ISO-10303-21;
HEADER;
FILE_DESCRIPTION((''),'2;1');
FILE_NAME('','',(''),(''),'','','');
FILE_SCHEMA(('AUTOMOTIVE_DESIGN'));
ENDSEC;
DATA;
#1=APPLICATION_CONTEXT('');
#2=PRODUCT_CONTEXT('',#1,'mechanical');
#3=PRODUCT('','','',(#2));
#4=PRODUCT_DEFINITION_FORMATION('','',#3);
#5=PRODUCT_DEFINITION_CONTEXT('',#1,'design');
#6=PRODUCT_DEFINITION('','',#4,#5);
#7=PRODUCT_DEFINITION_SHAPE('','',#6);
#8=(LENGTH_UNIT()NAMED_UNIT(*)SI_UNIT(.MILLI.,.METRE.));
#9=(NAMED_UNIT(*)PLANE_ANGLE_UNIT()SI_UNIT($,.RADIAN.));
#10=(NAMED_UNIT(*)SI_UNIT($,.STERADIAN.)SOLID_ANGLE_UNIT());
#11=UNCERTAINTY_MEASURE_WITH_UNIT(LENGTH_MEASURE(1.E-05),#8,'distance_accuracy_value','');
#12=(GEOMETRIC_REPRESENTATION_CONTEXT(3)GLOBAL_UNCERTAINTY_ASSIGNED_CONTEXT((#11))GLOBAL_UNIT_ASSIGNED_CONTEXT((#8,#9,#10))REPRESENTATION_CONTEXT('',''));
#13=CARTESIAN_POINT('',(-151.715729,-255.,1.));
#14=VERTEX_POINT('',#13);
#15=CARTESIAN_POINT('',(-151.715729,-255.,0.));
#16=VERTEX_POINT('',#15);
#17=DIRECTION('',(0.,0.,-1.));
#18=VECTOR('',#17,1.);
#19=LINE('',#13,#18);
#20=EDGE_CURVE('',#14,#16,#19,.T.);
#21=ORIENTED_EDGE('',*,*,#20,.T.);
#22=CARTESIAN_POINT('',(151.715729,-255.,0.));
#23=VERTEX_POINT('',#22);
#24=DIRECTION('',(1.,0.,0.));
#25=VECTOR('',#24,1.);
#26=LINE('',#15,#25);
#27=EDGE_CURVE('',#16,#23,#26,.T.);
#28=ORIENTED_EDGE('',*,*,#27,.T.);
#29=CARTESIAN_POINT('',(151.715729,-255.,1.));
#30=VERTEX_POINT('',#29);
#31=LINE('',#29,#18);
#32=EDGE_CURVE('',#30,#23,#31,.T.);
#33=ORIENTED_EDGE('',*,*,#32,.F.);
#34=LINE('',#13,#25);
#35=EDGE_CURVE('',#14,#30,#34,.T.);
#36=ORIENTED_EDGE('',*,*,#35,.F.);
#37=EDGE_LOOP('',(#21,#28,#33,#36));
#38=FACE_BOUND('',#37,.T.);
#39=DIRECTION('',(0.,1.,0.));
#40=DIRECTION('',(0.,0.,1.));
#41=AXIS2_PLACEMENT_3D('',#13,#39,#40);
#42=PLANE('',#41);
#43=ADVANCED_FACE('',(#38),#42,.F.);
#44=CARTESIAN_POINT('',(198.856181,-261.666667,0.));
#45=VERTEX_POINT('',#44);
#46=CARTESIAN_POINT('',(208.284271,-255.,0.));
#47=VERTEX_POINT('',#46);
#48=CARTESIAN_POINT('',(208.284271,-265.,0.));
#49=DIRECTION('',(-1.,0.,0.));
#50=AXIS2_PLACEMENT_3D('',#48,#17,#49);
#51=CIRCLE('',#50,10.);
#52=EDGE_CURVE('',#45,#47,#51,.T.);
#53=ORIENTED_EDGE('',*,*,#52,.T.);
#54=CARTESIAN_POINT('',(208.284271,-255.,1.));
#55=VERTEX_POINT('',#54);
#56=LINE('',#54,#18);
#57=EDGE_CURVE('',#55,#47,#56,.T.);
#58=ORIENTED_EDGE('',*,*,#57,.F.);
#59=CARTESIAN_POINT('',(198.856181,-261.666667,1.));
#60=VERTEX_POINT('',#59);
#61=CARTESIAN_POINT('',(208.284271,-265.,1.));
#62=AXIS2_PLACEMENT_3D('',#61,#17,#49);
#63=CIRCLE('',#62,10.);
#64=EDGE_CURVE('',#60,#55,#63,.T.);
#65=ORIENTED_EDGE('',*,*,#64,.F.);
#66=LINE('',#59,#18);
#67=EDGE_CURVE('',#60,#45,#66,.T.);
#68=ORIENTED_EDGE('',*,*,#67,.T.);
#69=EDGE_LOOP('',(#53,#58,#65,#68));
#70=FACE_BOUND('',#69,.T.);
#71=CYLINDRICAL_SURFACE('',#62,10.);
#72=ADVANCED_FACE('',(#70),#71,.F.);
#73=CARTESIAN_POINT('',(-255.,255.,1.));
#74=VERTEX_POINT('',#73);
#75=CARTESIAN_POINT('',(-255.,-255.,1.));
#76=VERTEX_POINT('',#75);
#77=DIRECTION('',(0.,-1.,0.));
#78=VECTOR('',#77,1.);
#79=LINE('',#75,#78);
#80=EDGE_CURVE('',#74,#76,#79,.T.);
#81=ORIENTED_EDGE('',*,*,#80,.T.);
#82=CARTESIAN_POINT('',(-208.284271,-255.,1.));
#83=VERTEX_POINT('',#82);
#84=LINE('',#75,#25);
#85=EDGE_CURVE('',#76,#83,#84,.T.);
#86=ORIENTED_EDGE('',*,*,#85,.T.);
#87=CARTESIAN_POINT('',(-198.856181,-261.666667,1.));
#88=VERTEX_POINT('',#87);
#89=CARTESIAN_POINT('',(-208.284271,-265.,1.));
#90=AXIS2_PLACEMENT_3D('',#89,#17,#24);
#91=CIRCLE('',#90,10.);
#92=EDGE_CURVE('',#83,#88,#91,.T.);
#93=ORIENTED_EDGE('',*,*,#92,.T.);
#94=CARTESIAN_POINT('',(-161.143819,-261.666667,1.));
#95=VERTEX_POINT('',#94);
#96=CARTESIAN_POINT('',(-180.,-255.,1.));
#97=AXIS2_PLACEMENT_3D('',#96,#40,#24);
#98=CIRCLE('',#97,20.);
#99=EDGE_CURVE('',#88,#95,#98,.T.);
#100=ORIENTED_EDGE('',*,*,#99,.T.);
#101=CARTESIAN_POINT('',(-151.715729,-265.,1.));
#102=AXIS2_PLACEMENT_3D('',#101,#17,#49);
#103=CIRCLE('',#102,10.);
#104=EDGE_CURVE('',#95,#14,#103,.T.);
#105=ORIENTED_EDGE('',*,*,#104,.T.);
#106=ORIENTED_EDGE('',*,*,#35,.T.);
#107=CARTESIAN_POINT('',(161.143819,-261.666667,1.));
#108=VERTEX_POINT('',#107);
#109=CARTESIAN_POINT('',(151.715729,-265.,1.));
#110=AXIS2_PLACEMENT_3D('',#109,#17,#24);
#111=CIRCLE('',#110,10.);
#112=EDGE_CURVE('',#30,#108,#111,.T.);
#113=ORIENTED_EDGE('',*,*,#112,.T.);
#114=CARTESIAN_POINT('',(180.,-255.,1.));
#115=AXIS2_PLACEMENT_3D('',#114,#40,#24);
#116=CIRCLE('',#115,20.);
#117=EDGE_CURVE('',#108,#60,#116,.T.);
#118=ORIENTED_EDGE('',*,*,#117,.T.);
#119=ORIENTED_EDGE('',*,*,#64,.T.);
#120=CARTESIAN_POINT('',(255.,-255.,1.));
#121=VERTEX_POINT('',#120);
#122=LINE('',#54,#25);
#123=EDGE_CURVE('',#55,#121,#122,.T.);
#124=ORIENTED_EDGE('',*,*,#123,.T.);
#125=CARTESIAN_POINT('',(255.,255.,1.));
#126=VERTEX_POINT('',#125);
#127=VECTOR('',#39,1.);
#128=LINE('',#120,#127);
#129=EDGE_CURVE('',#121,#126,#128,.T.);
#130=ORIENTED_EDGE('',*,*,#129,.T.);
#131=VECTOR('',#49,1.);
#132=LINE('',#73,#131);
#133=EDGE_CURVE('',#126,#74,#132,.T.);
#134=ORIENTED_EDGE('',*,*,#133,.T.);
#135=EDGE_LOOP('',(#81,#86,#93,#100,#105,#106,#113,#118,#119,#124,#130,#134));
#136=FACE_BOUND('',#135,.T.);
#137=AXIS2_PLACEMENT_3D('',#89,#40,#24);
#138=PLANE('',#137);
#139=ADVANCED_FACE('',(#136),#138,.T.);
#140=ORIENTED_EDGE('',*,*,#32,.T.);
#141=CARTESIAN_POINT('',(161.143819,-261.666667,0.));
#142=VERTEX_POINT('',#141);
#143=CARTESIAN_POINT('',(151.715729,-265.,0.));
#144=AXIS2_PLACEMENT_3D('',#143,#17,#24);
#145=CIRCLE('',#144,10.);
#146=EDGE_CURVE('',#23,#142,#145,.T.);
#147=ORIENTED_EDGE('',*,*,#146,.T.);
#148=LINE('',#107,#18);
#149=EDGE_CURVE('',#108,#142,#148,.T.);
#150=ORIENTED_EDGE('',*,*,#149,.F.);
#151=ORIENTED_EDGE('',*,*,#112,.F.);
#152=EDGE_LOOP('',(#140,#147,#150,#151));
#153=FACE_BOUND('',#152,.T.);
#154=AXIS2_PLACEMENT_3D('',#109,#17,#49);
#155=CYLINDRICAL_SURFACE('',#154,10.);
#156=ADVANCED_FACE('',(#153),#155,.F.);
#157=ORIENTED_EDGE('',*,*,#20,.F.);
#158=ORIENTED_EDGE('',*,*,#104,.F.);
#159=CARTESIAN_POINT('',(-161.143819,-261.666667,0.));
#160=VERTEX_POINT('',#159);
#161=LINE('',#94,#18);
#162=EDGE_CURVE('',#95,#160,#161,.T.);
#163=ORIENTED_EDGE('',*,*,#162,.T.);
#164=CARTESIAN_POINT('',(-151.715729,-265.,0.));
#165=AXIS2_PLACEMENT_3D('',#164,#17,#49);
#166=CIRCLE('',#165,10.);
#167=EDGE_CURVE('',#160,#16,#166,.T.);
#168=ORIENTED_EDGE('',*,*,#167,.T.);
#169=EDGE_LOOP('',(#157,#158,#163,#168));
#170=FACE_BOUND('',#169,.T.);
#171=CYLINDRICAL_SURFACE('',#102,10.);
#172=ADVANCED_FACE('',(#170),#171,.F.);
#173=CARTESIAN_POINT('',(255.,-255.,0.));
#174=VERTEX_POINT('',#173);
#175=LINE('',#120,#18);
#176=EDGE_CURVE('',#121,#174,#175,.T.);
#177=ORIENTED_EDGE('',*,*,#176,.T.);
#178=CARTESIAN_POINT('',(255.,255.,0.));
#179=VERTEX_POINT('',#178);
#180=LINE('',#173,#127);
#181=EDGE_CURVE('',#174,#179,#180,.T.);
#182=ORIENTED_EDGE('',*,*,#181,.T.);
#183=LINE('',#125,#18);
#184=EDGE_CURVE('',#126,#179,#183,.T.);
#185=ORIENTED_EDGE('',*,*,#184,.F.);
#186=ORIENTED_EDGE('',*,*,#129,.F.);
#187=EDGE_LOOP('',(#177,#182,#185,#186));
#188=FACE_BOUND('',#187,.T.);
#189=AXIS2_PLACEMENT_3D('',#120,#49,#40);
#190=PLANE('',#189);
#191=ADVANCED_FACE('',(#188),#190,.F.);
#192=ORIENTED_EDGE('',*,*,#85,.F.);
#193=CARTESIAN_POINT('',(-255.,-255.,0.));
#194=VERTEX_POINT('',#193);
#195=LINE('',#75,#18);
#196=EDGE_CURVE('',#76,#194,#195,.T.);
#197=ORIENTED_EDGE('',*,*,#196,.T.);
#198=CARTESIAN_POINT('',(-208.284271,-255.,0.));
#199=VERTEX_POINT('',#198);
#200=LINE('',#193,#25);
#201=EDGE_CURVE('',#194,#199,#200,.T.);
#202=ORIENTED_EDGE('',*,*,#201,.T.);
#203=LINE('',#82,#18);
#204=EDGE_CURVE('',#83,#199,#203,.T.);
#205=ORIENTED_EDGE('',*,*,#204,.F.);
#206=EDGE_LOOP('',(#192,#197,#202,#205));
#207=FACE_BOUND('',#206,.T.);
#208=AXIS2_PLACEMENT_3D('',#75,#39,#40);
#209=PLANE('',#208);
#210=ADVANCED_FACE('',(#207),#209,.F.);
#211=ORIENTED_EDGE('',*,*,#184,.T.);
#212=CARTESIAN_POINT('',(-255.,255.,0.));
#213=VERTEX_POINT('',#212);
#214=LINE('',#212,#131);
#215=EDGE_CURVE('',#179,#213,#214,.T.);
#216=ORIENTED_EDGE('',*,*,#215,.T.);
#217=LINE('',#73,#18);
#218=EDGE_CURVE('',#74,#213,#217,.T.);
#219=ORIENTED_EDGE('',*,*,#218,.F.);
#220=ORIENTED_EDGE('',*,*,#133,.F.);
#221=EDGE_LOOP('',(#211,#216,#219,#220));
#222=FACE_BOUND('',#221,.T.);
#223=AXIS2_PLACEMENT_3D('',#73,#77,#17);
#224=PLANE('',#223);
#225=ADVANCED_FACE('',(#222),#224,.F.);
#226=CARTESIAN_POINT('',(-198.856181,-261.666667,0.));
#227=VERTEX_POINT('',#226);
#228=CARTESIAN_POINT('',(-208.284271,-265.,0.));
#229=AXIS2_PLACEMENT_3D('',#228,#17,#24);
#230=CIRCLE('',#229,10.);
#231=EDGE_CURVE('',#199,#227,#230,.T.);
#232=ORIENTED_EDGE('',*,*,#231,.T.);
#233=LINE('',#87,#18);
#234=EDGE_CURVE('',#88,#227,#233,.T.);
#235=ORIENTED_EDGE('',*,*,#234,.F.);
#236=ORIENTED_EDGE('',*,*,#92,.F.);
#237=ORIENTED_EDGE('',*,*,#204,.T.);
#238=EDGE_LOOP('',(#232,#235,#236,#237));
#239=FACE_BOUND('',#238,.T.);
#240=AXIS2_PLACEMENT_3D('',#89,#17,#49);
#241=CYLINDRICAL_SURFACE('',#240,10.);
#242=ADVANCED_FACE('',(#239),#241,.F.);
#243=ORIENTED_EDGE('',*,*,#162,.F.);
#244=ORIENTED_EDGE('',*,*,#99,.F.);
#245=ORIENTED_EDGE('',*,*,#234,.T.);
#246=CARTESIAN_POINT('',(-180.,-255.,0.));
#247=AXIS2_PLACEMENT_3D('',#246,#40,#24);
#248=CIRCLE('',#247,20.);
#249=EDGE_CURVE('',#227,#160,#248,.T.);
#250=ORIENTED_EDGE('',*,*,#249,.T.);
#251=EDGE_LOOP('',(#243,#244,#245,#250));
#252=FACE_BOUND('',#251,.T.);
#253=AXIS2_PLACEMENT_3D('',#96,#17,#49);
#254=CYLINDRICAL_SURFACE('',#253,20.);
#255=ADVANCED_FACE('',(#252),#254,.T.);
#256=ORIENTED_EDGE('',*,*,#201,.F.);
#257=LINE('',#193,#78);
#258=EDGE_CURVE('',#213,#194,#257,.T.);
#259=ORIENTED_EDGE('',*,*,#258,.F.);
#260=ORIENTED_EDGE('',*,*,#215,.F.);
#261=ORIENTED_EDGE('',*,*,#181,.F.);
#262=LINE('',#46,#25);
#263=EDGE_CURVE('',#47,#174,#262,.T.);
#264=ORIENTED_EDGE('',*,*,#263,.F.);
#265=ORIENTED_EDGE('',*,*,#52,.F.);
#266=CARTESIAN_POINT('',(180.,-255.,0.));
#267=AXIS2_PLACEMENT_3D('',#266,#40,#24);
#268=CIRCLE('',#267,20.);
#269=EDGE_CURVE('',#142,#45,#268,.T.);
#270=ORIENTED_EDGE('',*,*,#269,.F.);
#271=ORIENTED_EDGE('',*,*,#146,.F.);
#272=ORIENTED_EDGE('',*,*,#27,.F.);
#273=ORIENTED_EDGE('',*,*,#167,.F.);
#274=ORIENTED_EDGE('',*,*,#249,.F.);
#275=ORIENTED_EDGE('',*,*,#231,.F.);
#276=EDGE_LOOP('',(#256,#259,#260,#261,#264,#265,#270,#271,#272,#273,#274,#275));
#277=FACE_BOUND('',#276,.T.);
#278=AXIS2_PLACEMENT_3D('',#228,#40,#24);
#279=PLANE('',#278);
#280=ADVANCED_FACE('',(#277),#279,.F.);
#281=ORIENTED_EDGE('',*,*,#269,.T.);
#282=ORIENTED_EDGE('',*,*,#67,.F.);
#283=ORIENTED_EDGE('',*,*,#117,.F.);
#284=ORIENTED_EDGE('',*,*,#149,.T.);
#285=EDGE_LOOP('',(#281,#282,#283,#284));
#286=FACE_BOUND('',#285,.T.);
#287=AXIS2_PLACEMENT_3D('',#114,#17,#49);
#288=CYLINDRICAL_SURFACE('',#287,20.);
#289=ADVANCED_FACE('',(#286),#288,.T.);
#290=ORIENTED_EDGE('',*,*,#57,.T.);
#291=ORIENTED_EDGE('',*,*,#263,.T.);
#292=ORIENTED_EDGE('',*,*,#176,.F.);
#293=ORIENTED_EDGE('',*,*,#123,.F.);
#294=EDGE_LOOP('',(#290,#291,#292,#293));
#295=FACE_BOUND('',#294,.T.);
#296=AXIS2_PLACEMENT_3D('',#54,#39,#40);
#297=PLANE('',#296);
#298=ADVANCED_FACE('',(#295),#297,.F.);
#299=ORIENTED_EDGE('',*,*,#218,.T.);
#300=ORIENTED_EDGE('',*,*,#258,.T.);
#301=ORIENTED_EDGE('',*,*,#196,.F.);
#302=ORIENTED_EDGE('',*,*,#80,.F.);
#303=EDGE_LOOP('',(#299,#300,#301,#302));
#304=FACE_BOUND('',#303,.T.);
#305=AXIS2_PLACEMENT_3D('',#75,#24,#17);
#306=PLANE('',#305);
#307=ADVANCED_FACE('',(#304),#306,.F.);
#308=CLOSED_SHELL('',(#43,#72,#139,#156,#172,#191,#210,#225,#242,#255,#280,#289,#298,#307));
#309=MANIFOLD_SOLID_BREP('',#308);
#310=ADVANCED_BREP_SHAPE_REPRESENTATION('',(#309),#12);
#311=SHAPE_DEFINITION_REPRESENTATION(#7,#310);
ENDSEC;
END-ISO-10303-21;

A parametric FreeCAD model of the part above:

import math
import FreeCAD as App
import Part
import Sketcher

V = App.Vector

doc = App.newDocument("Part")
body = doc.addObject("PartDesign::Body", "Body")

sketch1 = body.newObject("Sketcher::SketchObject", "Sketch")
sketch1.AttachmentSupport = (doc.getObject("XY_Plane"), [""])
sketch1.MapMode = "FlatFace"
sketch1.addGeometry([
    Part.LineSegment(V(208, -255, 0), V(255, -255, 0)),
    Part.LineSegment(V(255, -255, 0), V(255, 255, 0)),
    Part.LineSegment(V(255, 255, 0), V(-255, 255, 0)),
    Part.LineSegment(V(-255, 255, 0), V(-255, -255, 0)),
    Part.LineSegment(V(-255, -255, 0), V(-208, -255, 0)),
    Part.ArcOfCircle(Part.Circle(V(-208, -265, 0), V(0, 0, 1), 10), math.radians(19), math.radians(90)),
    Part.ArcOfCircle(Part.Circle(V(-180, -255, 0), V(0, 0, 1), 20), math.radians(-161), math.radians(-19)),
    Part.ArcOfCircle(Part.Circle(V(-152, -265, 0), V(0, 0, 1), 10), math.radians(90), math.radians(161)),
    Part.LineSegment(V(-152, -255, 0), V(152, -255, 0)),
    Part.ArcOfCircle(Part.Circle(V(152, -265, 0), V(0, 0, 1), 10), math.radians(19), math.radians(90)),
    Part.ArcOfCircle(Part.Circle(V(180, -255, 0), V(0, 0, 1), 20), math.radians(-161), math.radians(-19)),
    Part.ArcOfCircle(Part.Circle(V(208, -265, 0), V(0, 0, 1), 10), math.radians(90), math.radians(161)),
], False)
sketch1.addConstraint([
    Sketcher.Constraint("Coincident", 0, 2, 1, 1),
    Sketcher.Constraint("Coincident", 1, 2, 2, 1),
    Sketcher.Constraint("Coincident", 2, 2, 3, 1),
    Sketcher.Constraint("Coincident", 3, 2, 4, 1),
    Sketcher.Constraint("Tangent", 4, 2, 5, 2),
    Sketcher.Constraint("Tangent", 5, 1, 6, 1),
    Sketcher.Constraint("Tangent", 6, 2, 7, 2),
    Sketcher.Constraint("Tangent", 7, 1, 8, 1),
    Sketcher.Constraint("Tangent", 8, 2, 9, 2),
    Sketcher.Constraint("Tangent", 9, 1, 10, 1),
    Sketcher.Constraint("Tangent", 10, 2, 11, 2),
    Sketcher.Constraint("Tangent", 11, 1, 0, 1),
    Sketcher.Constraint("Horizontal", 0),
    Sketcher.Constraint("Vertical", 1),
    Sketcher.Constraint("Horizontal", 2),
    Sketcher.Constraint("Vertical", 3),
    Sketcher.Constraint("Horizontal", 4),
    Sketcher.Constraint("Horizontal", 8),
    Sketcher.Constraint("Equal", 5, 7),
    Sketcher.Constraint("Equal", 7, 9),
    Sketcher.Constraint("Equal", 6, 10),
    Sketcher.Constraint("Equal", 9, 11),
    Sketcher.Constraint("Symmetric", 0, 2, 2, 2, -1, 1),
    Sketcher.Constraint("Symmetric", 6, 3, 10, 3, -2),
    Sketcher.Constraint("Horizontal", 5, 3, 7, 3),
    Sketcher.Constraint("Horizontal", 9, 3, 11, 3),
    Sketcher.Constraint("Horizontal", 10, 3, 0, 2),
    Sketcher.Constraint("Equal", 2, 1),
    Sketcher.Constraint("Radius", 5, 10.0),
    Sketcher.Constraint("Radius", 6, 20.0),
    Sketcher.Constraint("DistanceX", 2, 2, 2, 1, 510.0),
    Sketcher.Constraint("DistanceX", 6, 3, -1, 1, 180.0),
])
pad1 = body.newObject("PartDesign::Pad", "Pad")
pad1.Profile = sketch1
pad1.Length = 1

doc.recompute()
